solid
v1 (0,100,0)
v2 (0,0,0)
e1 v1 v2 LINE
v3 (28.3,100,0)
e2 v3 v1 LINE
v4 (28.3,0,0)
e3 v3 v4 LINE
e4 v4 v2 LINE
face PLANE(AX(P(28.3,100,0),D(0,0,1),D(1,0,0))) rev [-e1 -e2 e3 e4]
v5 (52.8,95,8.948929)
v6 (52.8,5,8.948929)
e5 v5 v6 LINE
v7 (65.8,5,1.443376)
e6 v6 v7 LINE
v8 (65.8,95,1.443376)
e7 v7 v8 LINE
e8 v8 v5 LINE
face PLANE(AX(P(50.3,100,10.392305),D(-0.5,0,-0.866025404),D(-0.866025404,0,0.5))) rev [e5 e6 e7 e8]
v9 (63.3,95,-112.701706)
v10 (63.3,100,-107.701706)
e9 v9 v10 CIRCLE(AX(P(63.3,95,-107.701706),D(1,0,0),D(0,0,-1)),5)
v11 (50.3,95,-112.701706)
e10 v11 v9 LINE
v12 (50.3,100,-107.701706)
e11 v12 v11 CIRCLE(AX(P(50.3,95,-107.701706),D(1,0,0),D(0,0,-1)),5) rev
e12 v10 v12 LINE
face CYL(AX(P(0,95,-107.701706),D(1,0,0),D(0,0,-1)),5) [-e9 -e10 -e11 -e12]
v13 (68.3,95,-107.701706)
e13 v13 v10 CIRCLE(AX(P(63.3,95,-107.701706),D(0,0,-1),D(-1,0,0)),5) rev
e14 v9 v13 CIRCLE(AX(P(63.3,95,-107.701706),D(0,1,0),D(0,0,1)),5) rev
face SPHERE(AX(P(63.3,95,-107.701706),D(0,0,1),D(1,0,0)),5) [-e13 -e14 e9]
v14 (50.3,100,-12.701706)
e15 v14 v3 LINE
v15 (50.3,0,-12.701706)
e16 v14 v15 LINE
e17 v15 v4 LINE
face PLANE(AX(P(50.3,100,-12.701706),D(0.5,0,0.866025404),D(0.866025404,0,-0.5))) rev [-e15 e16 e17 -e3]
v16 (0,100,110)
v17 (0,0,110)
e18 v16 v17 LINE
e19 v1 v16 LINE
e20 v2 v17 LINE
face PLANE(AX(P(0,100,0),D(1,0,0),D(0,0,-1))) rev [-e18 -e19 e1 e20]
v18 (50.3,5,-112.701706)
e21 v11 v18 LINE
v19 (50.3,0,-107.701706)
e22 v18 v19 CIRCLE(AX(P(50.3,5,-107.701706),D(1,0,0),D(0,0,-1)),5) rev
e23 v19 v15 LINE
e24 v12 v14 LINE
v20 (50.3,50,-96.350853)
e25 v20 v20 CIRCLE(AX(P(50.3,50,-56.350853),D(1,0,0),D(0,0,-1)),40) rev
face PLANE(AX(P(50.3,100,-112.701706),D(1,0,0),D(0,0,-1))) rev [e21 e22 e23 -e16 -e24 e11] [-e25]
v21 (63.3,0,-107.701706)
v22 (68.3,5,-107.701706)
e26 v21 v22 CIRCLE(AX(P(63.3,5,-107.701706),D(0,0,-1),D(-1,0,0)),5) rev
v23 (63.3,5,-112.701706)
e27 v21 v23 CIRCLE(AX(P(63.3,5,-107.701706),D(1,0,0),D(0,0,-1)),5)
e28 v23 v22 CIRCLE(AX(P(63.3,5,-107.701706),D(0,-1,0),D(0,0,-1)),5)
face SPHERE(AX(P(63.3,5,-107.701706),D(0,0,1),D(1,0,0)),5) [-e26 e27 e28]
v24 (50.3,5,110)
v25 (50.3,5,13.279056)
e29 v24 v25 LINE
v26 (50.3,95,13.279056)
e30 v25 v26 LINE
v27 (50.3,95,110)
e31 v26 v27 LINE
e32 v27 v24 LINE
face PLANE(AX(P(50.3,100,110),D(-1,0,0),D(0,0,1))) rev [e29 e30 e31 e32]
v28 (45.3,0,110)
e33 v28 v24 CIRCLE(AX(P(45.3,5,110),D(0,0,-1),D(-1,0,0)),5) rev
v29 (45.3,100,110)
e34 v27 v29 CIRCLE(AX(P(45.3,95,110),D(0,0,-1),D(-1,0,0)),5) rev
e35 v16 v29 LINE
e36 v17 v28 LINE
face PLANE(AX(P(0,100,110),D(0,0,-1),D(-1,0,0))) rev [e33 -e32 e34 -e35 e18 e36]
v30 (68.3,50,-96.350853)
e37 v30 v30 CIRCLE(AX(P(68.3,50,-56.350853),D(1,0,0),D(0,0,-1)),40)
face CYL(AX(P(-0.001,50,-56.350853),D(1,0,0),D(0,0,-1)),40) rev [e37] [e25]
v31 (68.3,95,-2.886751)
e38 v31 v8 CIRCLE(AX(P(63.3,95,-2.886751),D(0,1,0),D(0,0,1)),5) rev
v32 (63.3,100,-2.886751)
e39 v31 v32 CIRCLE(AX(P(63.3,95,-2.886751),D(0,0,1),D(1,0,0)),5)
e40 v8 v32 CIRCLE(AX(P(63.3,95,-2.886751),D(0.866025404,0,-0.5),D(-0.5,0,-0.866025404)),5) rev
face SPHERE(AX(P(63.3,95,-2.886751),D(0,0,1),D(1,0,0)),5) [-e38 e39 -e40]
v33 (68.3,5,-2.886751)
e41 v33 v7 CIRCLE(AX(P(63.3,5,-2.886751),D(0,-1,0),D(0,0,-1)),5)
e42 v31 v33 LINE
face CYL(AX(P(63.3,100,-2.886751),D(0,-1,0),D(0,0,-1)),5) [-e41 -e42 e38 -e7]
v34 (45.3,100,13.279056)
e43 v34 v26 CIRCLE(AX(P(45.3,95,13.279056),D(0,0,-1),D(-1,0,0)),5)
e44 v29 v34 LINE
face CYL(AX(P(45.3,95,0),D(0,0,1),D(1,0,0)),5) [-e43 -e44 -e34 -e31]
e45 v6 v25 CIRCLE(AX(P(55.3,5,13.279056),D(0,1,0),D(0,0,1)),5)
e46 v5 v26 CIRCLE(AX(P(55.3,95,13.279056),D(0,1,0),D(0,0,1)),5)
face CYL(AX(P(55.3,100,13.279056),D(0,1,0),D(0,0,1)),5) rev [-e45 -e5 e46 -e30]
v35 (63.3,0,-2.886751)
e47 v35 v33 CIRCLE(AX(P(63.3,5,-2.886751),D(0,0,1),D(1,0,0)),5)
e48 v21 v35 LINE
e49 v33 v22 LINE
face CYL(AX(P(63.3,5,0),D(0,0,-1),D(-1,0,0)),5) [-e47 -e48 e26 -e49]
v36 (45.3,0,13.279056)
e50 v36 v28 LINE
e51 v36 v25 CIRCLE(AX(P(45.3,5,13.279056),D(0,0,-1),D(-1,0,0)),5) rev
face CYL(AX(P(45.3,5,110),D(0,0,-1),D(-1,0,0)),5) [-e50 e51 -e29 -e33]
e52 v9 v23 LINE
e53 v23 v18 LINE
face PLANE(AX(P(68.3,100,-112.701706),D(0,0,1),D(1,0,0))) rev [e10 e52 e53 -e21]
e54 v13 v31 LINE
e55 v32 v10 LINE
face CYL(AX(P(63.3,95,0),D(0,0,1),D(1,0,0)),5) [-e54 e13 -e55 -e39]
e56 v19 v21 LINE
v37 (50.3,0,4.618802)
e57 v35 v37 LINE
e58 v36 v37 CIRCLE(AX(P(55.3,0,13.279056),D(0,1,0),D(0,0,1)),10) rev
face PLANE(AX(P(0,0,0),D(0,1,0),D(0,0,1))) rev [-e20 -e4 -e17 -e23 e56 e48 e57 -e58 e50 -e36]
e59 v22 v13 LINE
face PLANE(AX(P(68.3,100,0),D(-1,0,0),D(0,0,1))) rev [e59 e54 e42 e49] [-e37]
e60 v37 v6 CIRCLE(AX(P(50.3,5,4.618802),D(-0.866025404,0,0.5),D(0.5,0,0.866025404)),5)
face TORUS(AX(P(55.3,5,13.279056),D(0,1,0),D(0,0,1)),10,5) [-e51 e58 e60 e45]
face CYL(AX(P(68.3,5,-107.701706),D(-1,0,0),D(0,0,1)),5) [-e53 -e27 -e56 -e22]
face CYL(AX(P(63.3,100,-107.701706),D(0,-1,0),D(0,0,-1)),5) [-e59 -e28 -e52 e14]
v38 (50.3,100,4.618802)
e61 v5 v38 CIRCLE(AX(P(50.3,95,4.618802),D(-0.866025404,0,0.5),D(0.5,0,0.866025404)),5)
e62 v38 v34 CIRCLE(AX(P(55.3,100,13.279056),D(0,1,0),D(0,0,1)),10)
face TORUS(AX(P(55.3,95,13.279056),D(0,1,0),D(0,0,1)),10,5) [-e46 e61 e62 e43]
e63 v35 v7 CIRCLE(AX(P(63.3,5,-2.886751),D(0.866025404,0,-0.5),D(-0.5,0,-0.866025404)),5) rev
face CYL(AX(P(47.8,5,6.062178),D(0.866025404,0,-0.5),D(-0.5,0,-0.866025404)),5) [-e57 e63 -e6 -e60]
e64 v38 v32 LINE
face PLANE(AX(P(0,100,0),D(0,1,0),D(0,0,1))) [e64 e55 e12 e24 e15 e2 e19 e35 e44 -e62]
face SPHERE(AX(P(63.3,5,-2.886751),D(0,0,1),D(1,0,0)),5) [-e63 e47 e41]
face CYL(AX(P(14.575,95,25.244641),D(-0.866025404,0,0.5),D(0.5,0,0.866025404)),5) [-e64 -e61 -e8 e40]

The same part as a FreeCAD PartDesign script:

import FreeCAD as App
import Part
import Sketcher
Q = App.Units.Quantity


def edges_at(feature, points):
    """Names of the edges that pass closest to the given points."""
    edges = feature.Shape.Edges
    near = lambda p: min(range(len(edges)), key=lambda i: edges[i].distToShape(Part.Vertex(*p))[0])
    return sorted({f"Edge{near(p) + 1}" for p in points})


def add_polygon(sketch, points):
    """Adds a closed chain of lines whose ends are joined by coincident constraints."""
    first, n = sketch.GeometryCount, len(points)
    for a, b in zip(points, points[1:] + points[:1]):
        sketch.addGeometry(Part.LineSegment(App.Vector(*a, 0), App.Vector(*b, 0)), False)
    for i in range(n):
        sketch.addConstraint(Sketcher.Constraint("Coincident", first + i, 2, first + (i + 1) % n, 1))

doc = App.newDocument("Part")
body = doc.addObject("PartDesign::Body", "Body")

sketch1 = body.newObject("Sketcher::SketchObject", "Sketch")
sketch1.AttachmentSupport = (doc.getObject("XZ_Plane"), [""])
sketch1.MapMode = "FlatFace"
add_polygon(sketch1, [(50, 110), (50, 10), (68, 0), (68, -113), (50, -113), (50, -13), (28, 0), (0, 0), (0, 110)])
sketch1.addConstraint([
    Sketcher.Constraint("Vertical", 0),
    Sketcher.Constraint("Vertical", 2),
    Sketcher.Constraint("Horizontal", 3),
    Sketcher.Constraint("Vertical", 4),
    Sketcher.Constraint("Horizontal", 6),
    Sketcher.Constraint("Vertical", 7),
    Sketcher.Constraint("Horizontal", 8),
    Sketcher.Constraint("Coincident", 6, 2, -1, 1),
    Sketcher.Constraint("PointOnObject", 1, 2, -1),
    Sketcher.Constraint("Parallel", 1, 5),
    Sketcher.Constraint("Vertical", 0, 2, 3, 2),
    Sketcher.Constraint("DistanceX", 3, 2, 3, 1, Q("18 mm")),
    Sketcher.Constraint("DistanceY", 4, 1, 4, 2, Q("100 mm")),
    Sketcher.Constraint("DistanceY", 7, 1, 7, 2, Q("110 mm")),
    Sketcher.Constraint("Angle", 1, Q("-30 deg")),
    Sketcher.Constraint("DistanceX", 6, 2, 6, 1, Q("28.3 mm")),
    Sketcher.Constraint("DistanceX", 8, 1, 8, 2, Q("50.3 mm")),
])
pad1 = body.newObject("PartDesign::Pad", "Pad")
pad1.Profile = sketch1
pad1.Length = 100
pad1.Reversed = True

sketch2 = body.newObject("Sketcher::SketchObject", "Sketch001")
sketch2.AttachmentSupport = (doc.getObject("YZ_Plane"), [""])
sketch2.MapMode = "FlatFace"
sketch2.AttachmentOffset = App.Placement(App.Vector(0, 0, 68.3), App.Rotation())
sketch2.addGeometry(Part.Circle(App.Vector(50, -56, 0), App.Vector(0, 0, 1), 40), False)
sketch2.addConstraint([
    Sketcher.Constraint("Diameter", 0, Q("80 mm")),
    Sketcher.Constraint("DistanceX", -1, 1, 0, 3, Q("50 mm")),
    Sketcher.Constraint("DistanceY", 0, 3, -1, 1, Q("56.350853 mm")),
])
pocket1 = body.newObject("PartDesign::Pocket", "Pocket")
pocket1.Profile = sketch2
pocket1.Type = "UpToFirst"
doc.recompute()

fillet = body.newObject("PartDesign::Fillet", "Fillet")
fillet.Base = (pocket1, edges_at(pocket1, [
    (50.3, 0, 60.196),
    (50.3, 100, 60.196),
    (59.3, 0, 5.196),
    (59.3, 100, 5.196),
    (68.3, 0, -56.351),
    (68.3, 50, -112.702),
    (68.3, 100, -56.351),
    (68.3, 50, 0),
    (50.3, 50, 10.392),
    (59.3, 0, -112.702),
    (59.3, 100, -112.702),
]))
fillet.Radius = 5

doc.recompute()
